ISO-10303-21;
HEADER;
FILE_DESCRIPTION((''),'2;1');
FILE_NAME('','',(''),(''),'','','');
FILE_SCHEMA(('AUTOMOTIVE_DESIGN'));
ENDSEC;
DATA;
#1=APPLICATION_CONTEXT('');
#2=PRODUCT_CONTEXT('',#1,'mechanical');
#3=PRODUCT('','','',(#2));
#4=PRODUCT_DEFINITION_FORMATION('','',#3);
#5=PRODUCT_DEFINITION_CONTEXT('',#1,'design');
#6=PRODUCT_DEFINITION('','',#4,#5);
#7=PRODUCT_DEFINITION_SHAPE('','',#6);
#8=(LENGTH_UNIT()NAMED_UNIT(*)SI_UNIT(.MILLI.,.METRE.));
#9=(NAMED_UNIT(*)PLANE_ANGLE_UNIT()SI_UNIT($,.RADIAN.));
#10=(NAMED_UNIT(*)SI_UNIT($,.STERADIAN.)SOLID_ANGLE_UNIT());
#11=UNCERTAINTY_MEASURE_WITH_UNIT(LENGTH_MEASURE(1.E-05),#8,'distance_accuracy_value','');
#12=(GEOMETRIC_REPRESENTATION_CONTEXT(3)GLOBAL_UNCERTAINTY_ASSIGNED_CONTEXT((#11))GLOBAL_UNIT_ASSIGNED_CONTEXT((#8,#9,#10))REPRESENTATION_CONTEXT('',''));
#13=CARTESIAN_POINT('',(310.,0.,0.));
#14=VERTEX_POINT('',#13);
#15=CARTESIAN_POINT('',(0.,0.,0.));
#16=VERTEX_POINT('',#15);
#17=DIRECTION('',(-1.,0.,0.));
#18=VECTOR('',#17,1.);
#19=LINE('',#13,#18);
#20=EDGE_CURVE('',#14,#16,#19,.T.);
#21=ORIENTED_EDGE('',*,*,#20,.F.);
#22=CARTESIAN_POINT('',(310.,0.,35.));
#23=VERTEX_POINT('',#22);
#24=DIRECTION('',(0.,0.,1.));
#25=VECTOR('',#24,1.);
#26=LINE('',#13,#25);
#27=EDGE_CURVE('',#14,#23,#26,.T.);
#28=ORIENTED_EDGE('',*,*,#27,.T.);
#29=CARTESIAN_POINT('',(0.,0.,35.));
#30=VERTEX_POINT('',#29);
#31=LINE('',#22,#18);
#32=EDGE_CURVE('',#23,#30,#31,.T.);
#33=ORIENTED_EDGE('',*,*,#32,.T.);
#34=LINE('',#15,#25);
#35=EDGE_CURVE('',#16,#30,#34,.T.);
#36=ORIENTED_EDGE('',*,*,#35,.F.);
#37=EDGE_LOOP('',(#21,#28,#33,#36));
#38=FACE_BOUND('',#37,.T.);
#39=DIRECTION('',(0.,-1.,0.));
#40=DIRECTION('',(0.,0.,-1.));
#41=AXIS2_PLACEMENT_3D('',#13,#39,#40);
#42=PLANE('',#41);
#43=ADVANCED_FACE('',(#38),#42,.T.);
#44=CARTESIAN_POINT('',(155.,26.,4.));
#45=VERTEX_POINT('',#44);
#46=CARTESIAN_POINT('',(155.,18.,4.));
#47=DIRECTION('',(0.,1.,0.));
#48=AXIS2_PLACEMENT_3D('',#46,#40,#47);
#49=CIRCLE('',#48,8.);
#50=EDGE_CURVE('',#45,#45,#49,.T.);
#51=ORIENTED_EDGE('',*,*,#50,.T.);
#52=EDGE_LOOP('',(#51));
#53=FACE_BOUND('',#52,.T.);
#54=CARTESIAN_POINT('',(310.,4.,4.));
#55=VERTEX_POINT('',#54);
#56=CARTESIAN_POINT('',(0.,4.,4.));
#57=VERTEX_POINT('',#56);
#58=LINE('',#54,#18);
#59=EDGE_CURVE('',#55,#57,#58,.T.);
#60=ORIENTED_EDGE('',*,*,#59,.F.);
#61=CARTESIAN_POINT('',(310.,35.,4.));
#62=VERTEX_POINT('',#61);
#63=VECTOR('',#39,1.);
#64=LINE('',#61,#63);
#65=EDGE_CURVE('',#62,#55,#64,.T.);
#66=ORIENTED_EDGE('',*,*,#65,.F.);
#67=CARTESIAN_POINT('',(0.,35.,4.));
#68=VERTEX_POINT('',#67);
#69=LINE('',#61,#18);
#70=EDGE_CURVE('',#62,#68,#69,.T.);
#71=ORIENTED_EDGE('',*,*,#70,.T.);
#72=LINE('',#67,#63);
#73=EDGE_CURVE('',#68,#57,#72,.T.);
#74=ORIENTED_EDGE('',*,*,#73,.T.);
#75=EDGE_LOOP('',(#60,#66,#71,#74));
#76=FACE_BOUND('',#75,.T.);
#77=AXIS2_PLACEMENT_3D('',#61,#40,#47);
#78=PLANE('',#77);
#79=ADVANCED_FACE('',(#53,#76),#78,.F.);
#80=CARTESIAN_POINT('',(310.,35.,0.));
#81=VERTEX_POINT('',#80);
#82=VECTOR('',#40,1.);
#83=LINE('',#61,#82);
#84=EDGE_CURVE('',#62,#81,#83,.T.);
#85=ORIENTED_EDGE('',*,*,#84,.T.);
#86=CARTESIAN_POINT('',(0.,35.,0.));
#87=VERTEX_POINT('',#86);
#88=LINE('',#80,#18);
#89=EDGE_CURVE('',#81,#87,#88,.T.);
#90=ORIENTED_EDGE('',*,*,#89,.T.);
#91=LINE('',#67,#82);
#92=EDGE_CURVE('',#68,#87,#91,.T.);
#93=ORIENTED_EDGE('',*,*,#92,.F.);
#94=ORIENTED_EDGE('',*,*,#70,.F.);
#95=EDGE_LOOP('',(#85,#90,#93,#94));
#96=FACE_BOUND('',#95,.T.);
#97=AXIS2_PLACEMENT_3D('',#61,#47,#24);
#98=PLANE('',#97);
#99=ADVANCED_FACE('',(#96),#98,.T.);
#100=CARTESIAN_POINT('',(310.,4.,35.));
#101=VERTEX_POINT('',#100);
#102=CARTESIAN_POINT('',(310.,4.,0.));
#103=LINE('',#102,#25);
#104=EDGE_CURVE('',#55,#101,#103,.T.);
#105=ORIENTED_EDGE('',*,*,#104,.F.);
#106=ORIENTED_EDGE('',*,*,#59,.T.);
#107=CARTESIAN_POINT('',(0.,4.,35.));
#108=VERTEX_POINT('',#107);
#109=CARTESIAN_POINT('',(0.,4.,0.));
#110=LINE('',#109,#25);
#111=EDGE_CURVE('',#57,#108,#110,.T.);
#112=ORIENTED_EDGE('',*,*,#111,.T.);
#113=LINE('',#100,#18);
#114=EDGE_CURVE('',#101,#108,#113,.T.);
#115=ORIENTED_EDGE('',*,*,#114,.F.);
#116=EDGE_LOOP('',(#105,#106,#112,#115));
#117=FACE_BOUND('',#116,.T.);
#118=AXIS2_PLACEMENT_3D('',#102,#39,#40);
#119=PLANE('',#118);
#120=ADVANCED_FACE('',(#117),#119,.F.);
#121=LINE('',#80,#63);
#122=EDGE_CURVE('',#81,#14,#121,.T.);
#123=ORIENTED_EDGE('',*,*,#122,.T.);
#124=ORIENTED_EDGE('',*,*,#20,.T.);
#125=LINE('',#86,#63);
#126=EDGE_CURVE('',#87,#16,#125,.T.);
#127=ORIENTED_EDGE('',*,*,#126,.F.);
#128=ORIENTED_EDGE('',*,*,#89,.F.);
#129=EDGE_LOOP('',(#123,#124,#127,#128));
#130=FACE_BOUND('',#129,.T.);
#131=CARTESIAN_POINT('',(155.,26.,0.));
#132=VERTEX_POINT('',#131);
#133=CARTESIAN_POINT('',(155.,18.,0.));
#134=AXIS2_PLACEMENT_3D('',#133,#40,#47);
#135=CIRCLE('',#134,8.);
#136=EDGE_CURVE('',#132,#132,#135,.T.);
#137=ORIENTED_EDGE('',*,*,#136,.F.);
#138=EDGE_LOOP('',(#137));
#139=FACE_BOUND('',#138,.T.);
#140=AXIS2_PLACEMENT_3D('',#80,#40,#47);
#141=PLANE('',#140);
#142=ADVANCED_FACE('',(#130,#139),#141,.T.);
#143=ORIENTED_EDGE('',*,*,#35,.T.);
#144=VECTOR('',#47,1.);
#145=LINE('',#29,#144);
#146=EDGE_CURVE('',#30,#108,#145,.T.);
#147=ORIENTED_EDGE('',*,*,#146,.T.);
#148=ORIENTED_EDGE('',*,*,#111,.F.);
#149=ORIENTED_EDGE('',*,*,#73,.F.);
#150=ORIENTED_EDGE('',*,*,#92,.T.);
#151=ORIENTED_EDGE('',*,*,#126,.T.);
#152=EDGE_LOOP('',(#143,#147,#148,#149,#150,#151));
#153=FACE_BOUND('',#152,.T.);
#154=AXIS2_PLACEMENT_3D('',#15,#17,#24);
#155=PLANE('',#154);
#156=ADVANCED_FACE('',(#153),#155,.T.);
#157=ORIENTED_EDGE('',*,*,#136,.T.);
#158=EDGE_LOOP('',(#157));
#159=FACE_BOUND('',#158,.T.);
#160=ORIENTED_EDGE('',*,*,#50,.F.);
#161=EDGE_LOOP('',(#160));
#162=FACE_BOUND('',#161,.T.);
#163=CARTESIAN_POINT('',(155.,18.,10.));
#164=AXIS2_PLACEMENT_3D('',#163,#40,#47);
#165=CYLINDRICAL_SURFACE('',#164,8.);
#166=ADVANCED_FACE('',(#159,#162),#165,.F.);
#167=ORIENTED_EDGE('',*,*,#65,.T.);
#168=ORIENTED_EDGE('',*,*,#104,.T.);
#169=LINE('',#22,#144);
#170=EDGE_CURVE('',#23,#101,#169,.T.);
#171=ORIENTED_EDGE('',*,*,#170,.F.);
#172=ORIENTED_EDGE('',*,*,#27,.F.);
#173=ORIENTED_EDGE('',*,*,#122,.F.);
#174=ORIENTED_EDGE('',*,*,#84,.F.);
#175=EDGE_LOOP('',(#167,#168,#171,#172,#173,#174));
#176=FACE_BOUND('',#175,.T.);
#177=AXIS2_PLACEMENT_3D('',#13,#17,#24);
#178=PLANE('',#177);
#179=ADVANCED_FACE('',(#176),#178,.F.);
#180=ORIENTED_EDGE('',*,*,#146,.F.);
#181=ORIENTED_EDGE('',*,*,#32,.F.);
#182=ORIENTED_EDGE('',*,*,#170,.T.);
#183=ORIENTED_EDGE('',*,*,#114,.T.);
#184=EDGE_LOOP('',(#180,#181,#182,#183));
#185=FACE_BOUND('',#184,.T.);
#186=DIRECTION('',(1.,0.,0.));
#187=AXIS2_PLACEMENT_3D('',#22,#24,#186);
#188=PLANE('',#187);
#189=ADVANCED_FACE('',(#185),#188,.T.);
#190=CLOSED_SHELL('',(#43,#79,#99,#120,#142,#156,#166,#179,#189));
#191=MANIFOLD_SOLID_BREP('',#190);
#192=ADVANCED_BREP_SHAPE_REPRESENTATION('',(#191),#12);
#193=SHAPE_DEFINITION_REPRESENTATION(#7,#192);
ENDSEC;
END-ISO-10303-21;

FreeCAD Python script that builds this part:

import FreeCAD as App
import Part
import Sketcher
Q = App.Units.Quantity

doc = App.newDocument("Part")
body = doc.addObject("PartDesign::Body", "Body")

# Sketch on YZ plane
sketch1 = body.newObject("Sketcher::SketchObject", "Sketch")
sketch1.AttachmentSupport = (doc.getObject("YZ_Plane"), [""])
sketch1.MapMode = "FlatFace"
sketch1.addGeometry(Part.LineSegment(App.Vector(0, 0, 0), App.Vector(35, 0, 0)), False)
sketch1.addGeometry(Part.LineSegment(App.Vector(35, 0, 0), App.Vector(35, 4, 0)), False)
sketch1.addGeometry(Part.LineSegment(App.Vector(35, 4, 0), App.Vector(4, 4, 0)), False)
sketch1.addGeometry(Part.LineSegment(App.Vector(4, 4, 0), App.Vector(4, 35, 0)), False)
sketch1.addGeometry(Part.LineSegment(App.Vector(4, 35, 0), App.Vector(0, 35, 0)), False)
sketch1.addGeometry(Part.LineSegment(App.Vector(0, 35, 0), App.Vector(0, 0, 0)), False)
sketch1.addConstraint(Sketcher.Constraint("Coincident", 0, 2, 1, 1))
sketch1.addConstraint(Sketcher.Constraint("Coincident", 1, 2, 2, 1))
sketch1.addConstraint(Sketcher.Constraint("Coincident", 2, 2, 3, 1))
sketch1.addConstraint(Sketcher.Constraint("Coincident", 3, 2, 4, 1))
sketch1.addConstraint(Sketcher.Constraint("Coincident", 4, 2, 5, 1))
sketch1.addConstraint(Sketcher.Constraint("Coincident", 5, 2, 0, 1))
sketch1.addConstraint(Sketcher.Constraint("Horizontal", 0))
sketch1.addConstraint(Sketcher.Constraint("Vertical", 1))
sketch1.addConstraint(Sketcher.Constraint("Horizontal", 2))
sketch1.addConstraint(Sketcher.Constraint("Vertical", 3))
sketch1.addConstraint(Sketcher.Constraint("Horizontal", 4))
sketch1.addConstraint(Sketcher.Constraint("Vertical", 5))
sketch1.addConstraint(Sketcher.Constraint("Coincident", 5, 2, -1, 1))
sketch1.addConstraint(Sketcher.Constraint("Equal", 4, 1))
sketch1.addConstraint(Sketcher.Constraint("Equal", 2, 3))
sketch1.addConstraint(Sketcher.Constraint("DistanceX", 0, 1, 0, 2, Q("35 mm")))
sketch1.addConstraint(Sketcher.Constraint("DistanceX", 2, 2, 2, 1, Q("31 mm")))
pad1 = body.newObject("PartDesign::Pad", "Pad")
pad1.Profile = sketch1
pad1.Length = 310

# Sketch on XY plane
sketch2 = body.newObject("Sketcher::SketchObject", "Sketch001")
sketch2.AttachmentSupport = (doc.getObject("XY_Plane"), [""])
sketch2.MapMode = "FlatFace"
sketch2.addGeometry(Part.Circle(App.Vector(155, 18, 0), App.Vector(0, 0, 1), 8), False)
sketch2.addConstraint(Sketcher.Constraint("Diameter", 0, Q("16 mm")))
sketch2.addConstraint(Sketcher.Constraint("DistanceX", -1, 1, 0, 3, Q("155 mm")))
sketch2.addConstraint(Sketcher.Constraint("DistanceY", -1, 1, 0, 3, Q("18 mm")))
pocket1 = body.newObject("PartDesign::Pocket", "Pocket")
pocket1.Profile = sketch2
pocket1.Length = 10
pocket1.Reversed = True

doc.recompute()
